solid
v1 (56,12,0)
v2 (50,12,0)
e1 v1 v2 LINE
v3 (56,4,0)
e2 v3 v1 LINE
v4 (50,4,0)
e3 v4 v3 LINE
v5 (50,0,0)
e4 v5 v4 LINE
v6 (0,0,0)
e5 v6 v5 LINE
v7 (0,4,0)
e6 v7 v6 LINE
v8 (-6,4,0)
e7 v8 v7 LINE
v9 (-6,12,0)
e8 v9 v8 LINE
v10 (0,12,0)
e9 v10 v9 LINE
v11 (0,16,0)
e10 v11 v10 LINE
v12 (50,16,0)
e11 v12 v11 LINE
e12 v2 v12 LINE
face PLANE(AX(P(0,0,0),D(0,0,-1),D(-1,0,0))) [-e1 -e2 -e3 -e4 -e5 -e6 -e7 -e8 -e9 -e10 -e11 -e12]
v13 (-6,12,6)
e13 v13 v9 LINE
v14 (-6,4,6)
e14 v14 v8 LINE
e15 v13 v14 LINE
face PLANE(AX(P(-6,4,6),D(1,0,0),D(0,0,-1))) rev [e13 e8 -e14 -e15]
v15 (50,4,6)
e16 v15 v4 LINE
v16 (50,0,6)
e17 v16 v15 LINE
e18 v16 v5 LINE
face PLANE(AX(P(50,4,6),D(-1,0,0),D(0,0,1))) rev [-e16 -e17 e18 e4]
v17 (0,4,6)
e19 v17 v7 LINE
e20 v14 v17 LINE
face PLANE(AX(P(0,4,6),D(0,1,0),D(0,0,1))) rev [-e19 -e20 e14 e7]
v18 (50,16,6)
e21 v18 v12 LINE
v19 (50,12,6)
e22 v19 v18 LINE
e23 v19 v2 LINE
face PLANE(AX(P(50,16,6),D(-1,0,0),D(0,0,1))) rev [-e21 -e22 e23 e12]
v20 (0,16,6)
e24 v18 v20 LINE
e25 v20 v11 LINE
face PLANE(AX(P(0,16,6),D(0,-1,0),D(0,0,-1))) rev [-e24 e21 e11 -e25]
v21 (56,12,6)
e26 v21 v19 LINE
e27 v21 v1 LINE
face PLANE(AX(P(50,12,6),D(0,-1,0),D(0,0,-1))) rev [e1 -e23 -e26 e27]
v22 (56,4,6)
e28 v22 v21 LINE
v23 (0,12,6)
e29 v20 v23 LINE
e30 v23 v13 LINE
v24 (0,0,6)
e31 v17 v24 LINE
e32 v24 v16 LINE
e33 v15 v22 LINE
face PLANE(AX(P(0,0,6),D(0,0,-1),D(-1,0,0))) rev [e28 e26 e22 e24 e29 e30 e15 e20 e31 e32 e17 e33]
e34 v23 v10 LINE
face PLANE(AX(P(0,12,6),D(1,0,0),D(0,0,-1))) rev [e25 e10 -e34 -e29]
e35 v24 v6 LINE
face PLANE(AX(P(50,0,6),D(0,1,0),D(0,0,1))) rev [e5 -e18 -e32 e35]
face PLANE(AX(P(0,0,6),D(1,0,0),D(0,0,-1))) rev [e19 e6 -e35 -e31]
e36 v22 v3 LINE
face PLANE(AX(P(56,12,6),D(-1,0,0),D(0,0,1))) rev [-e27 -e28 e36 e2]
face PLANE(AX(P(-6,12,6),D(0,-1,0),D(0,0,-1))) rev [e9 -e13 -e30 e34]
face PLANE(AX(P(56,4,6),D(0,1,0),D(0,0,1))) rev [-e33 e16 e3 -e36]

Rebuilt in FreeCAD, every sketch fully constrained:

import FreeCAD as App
import Part
import Sketcher

V = App.Vector


def add_polygon(sketch, points):
    """Adds a closed chain of lines whose ends are joined by coincident constraints."""
    first, n = sketch.GeometryCount, len(points)
    for a, b in zip(points, points[1:] + points[:1]):
        sketch.addGeometry(Part.LineSegment(App.Vector(*a, 0), App.Vector(*b, 0)), False)
    for i in range(n):
        sketch.addConstraint(Sketcher.Constraint("Coincident", first + i, 2, first + (i + 1) % n, 1))

doc = App.newDocument("Part")
body = doc.addObject("PartDesign::Body", "Body")

# Sketch on XY plane
sketch1 = doc.addObject("Sketcher::SketchObject", "Sketch")
body.addObject(sketch1)
sketch1.AttachmentSupport = (doc.XY_Plane, [""])
sketch1.MapMode = "FlatFace"
add_polygon(sketch1, [(0, 4), (0, 0), (50, 0), (50, 4), (56, 4), (56, 12), (50, 12), (50, 16), (0, 16), (0, 12), (-6, 12), (-6, 4)])  # lines 0-11
sketch1.addConstraint([
    Sketcher.Constraint("Vertical", 0),
    Sketcher.Constraint("Horizontal", 1),
    Sketcher.Constraint("Vertical", 2),
    Sketcher.Constraint("Horizontal", 3),
    Sketcher.Constraint("Vertical", 4),
    Sketcher.Constraint("Horizontal", 5),
    Sketcher.Constraint("Vertical", 6),
    Sketcher.Constraint("Horizontal", 7),
    Sketcher.Constraint("Vertical", 8),
    Sketcher.Constraint("Horizontal", 9),
    Sketcher.Constraint("Vertical", 10),
    Sketcher.Constraint("Horizontal", 11),
    Sketcher.Constraint("Coincident", 0, 2, -1, 1),
    Sketcher.Constraint("PointOnObject", 7, 2, -2),
    Sketcher.Constraint("Horizontal", 5, 2, 8, 2),
    Sketcher.Constraint("Horizontal", 3, 2, 10, 2),
    Sketcher.Constraint("Vertical", 2, 2, 5, 2),
    Sketcher.Constraint("Equal", 5, 9),
    Sketcher.Constraint("Equal", 2, 6),
    Sketcher.Constraint("DistanceX", 1, 1, 1, 2, 50.0),
    Sketcher.Constraint("DistanceX", 3, 1, 3, 2, 6.0),
    Sketcher.Constraint("DistanceY", 0, 2, 0, 1, 4.0),
    Sketcher.Constraint("DistanceY", 4, 1, 4, 2, 8.0),
])
pad1 = doc.addObject("PartDesign::Pad", "Pad")
body.addObject(pad1)
pad1.Profile = sketch1
pad1.Length = 6

doc.recompute()
